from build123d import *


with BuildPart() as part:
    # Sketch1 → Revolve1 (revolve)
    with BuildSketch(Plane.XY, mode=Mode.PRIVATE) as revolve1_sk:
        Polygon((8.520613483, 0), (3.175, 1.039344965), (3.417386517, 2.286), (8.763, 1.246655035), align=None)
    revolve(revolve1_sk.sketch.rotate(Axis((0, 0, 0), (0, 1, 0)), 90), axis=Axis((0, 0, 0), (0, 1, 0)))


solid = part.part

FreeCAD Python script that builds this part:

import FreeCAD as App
import Part
import Sketcher

V = App.Vector
Q = App.Units.Quantity

doc = App.newDocument("Part")
body = doc.addObject("PartDesign::Body", "Body")

# Sketch on XY plane
sketch1 = body.newObject("Sketcher::SketchObject", "Sketch")
sketch1.AttachmentSupport = (doc.getObject("XY_Plane"), [""])
sketch1.MapMode = "FlatFace"
sketch1.addGeometry([
    Part.LineSegment(V(3.2, 1, 0), V(8.5, 0, 0)),
    Part.LineSegment(V(8.5, 0, 0), V(8.8, 1.2, 0)),
    Part.LineSegment(V(8.8, 1.2, 0), V(3.4, 2.3, 0)),
    Part.LineSegment(V(3.4, 2.3, 0), V(3.2, 1, 0)),
], False)
sketch1.addConstraint([
    Sketcher.Constraint("Coincident", 0, 2, 1, 1),
    Sketcher.Constraint("Coincident", 1, 2, 2, 1),
    Sketcher.Constraint("Coincident", 2, 2, 3, 1),
    Sketcher.Constraint("Coincident", 3, 2, 0, 1),
    Sketcher.Constraint("PointOnObject", 0, 2, -1),
    Sketcher.Constraint("Perpendicular", 0, 1),
    Sketcher.Constraint("Perpendicular", 1, 2),
    Sketcher.Constraint("Perpendicular", 2, 3),
    Sketcher.Constraint("Distance", 1, Q("0.05 in")),
    Sketcher.Constraint("DistanceY", -1, 1, 2, 2, Q("0.09 in")),
    Sketcher.Constraint("DistanceX", 3, 2, 1, 2, Q("0.22 in")),
    Sketcher.Constraint("DistanceX", -1, 1, 1, 2, Q("0.345 in")),
])
revolution = body.newObject("PartDesign::Revolution", "Revolution")
revolution.Profile = sketch1
revolution.ReferenceAxis = (sketch1, ["V_Axis"])
revolution.Angle = 360

doc.recompute()
